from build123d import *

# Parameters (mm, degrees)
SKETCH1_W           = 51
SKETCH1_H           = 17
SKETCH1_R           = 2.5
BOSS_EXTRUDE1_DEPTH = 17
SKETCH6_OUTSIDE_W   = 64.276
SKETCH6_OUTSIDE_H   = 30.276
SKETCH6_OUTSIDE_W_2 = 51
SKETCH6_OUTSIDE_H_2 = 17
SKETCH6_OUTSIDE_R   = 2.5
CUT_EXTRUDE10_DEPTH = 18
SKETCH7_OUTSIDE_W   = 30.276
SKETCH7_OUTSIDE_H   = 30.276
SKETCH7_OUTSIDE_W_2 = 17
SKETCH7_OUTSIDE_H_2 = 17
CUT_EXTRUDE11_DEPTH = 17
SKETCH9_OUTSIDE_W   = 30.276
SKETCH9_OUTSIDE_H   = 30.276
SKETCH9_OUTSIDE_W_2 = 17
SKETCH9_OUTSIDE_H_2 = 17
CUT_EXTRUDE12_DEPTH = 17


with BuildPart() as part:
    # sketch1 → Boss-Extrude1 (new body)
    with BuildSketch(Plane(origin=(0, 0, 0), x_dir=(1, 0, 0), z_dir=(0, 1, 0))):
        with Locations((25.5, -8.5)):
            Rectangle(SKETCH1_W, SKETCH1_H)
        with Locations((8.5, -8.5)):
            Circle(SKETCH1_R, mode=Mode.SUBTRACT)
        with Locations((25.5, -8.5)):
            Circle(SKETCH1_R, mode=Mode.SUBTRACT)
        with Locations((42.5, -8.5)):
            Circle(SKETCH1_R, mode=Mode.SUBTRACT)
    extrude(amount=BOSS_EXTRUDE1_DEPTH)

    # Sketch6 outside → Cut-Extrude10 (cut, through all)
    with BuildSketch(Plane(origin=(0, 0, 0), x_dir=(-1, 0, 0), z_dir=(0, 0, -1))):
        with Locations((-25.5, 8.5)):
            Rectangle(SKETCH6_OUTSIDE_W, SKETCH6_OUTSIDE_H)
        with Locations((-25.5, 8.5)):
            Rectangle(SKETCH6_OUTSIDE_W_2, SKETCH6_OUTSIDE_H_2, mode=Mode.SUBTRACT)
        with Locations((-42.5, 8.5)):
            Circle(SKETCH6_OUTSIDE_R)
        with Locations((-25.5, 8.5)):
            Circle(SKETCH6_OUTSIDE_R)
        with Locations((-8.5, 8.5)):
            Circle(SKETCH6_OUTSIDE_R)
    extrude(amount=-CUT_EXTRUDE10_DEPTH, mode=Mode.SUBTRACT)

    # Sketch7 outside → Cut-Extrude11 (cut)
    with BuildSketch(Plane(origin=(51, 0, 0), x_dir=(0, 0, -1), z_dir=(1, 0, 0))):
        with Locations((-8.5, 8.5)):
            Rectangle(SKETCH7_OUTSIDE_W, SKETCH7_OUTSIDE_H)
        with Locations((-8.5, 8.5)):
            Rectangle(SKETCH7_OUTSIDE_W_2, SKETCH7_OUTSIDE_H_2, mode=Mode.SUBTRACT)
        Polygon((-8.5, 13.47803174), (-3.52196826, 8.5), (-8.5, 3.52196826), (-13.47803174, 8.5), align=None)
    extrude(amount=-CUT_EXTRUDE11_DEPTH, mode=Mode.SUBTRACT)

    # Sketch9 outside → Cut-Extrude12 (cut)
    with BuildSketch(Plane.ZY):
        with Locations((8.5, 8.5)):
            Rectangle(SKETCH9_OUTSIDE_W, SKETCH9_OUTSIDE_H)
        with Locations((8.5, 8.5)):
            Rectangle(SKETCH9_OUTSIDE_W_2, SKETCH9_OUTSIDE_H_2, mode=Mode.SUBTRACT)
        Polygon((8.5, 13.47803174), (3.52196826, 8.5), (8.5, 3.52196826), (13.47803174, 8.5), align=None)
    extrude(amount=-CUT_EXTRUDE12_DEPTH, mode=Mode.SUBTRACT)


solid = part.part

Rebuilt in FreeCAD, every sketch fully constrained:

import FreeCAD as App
import Part
import Sketcher

V = App.Vector
Q = App.Units.Quantity

doc = App.newDocument("Part")
body = doc.addObject("PartDesign::Body", "Body")

sketch1 = body.newObject("Sketcher::SketchObject", "Sketch")
sketch1.AttachmentSupport = (doc.getObject("XZ_Plane"), [""])
sketch1.MapMode = "FlatFace"
sketch1.addGeometry(Part.LineSegment(V(0, 0, 0), V(0, 17, 0)), False)
sketch1.addGeometry(Part.LineSegment(V(0, 17, 0), V(51, 17, 0)), False)
sketch1.addGeometry(Part.LineSegment(V(51, 17, 0), V(51, 0, 0)), False)
sketch1.addGeometry(Part.LineSegment(V(51, 0, 0), V(0, 0, 0)), False)
sketch1.addGeometry(Part.Circle(V(8.5, 8.5, 0), V(0, 0, 1), 2.5), False)
sketch1.addGeometry(Part.Circle(V(25.5, 8.5, 0), V(0, 0, 1), 2.5), False)
sketch1.addGeometry(Part.Circle(V(42.5, 8.5, 0), V(0, 0, 1), 2.5), False)
sketch1.addConstraint(Sketcher.Constraint("Coincident", 0, 2, 1, 1))
sketch1.addConstraint(Sketcher.Constraint("Coincident", 1, 2, 2, 1))
sketch1.addConstraint(Sketcher.Constraint("Coincident", 2, 2, 3, 1))
sketch1.addConstraint(Sketcher.Constraint("Coincident", 3, 2, 0, 1))
sketch1.addConstraint(Sketcher.Constraint("Vertical", 0))
sketch1.addConstraint(Sketcher.Constraint("Horizontal", 1))
sketch1.addConstraint(Sketcher.Constraint("Vertical", 2))
sketch1.addConstraint(Sketcher.Constraint("Horizontal", 3))
sketch1.addConstraint(Sketcher.Constraint("Coincident", 3, 2, -1, 1))
sketch1.addConstraint(Sketcher.Constraint("Equal", 4, 5))
sketch1.addConstraint(Sketcher.Constraint("Equal", 5, 6))
sketch1.addConstraint(Sketcher.Constraint("Horizontal", 4, 3, 5, 3))
sketch1.addConstraint(Sketcher.Constraint("Horizontal", 5, 3, 6, 3))
sketch1.addConstraint(Sketcher.Constraint("Diameter", 4, Q("5 mm")))
sketch1.addConstraint(Sketcher.Constraint("DistanceX", 1, 1, 1, 2, Q("51 mm")))
sketch1.addConstraint(Sketcher.Constraint("DistanceY", 0, 1, 0, 2, Q("17 mm")))
sketch1.addConstraint(Sketcher.Constraint("DistanceX", 4, 3, 5, 3, Q("17 mm")))
sketch1.addConstraint(Sketcher.Constraint("DistanceX", 5, 3, 6, 3, Q("17 mm")))
sketch1.addConstraint(Sketcher.Constraint("DistanceX", -1, 1, 4, 3, Q("8.5 mm")))
sketch1.addConstraint(Sketcher.Constraint("DistanceY", -1, 1, 4, 3, Q("8.5 mm")))
pad1 = body.newObject("PartDesign::Pad", "Pad")
pad1.Profile = sketch1
pad1.Length = 17
pad1.Reversed = True

sketch2 = body.newObject("Sketcher::SketchObject", "Sketch001")
sketch2.AttachmentSupport = (doc.getObject("XY_Plane"), [""])
sketch2.MapMode = "FlatFace"
sketch2.addGeometry(Part.LineSegment(V(57.638, 23.638, 0), V(57.638, -6.638, 0)), False)
sketch2.addGeometry(Part.LineSegment(V(57.638, -6.638, 0), V(-6.638, -6.638, 0)), False)
sketch2.addGeometry(Part.LineSegment(V(-6.638, -6.638, 0), V(-6.638, 23.638, 0)), False)
sketch2.addGeometry(Part.LineSegment(V(-6.638, 23.638, 0), V(57.638, 23.638, 0)), False)
sketch2.addGeometry(Part.LineSegment(V(0, 0, 0), V(51, 0, 0)), False)
sketch2.addGeometry(Part.LineSegment(V(51, 0, 0), V(51, 17, 0)), False)
sketch2.addGeometry(Part.LineSegment(V(51, 17, 0), V(0, 17, 0)), False)
sketch2.addGeometry(Part.LineSegment(V(0, 17, 0), V(0, 0, 0)), False)
sketch2.addGeometry(Part.Circle(V(42.5, 8.5, 0), V(0, 0, 1), 2.5), False)
sketch2.addGeometry(Part.Circle(V(25.5, 8.5, 0), V(0, 0, 1), 2.5), False)
sketch2.addGeometry(Part.Circle(V(8.5, 8.5, 0), V(0, 0, 1), 2.5), False)
sketch2.addConstraint(Sketcher.Constraint("Coincident", 0, 2, 1, 1))
sketch2.addConstraint(Sketcher.Constraint("Coincident", 1, 2, 2, 1))
sketch2.addConstraint(Sketcher.Constraint("Coincident", 2, 2, 3, 1))
sketch2.addConstraint(Sketcher.Constraint("Coincident", 3, 2, 0, 1))
sketch2.addConstraint(Sketcher.Constraint("Coincident", 4, 2, 5, 1))
sketch2.addConstraint(Sketcher.Constraint("Coincident", 5, 2, 6, 1))
sketch2.addConstraint(Sketcher.Constraint("Coincident", 6, 2, 7, 1))
sketch2.addConstraint(Sketcher.Constraint("Coincident", 7, 2, 4, 1))
sketch2.addConstraint(Sketcher.Constraint("Vertical", 0))
sketch2.addConstraint(Sketcher.Constraint("Horizontal", 1))
sketch2.addConstraint(Sketcher.Constraint("Vertical", 2))
sketch2.addConstraint(Sketcher.Constraint("Horizontal", 3))
sketch2.addConstraint(Sketcher.Constraint("Horizontal", 4))
sketch2.addConstraint(Sketcher.Constraint("Vertical", 5))
sketch2.addConstraint(Sketcher.Constraint("Horizontal", 6))
sketch2.addConstraint(Sketcher.Constraint("Vertical", 7))
sketch2.addConstraint(Sketcher.Constraint("Coincident", 7, 2, -1, 1))
sketch2.addConstraint(Sketcher.Constraint("Equal", 8, 9))
sketch2.addConstraint(Sketcher.Constraint("Equal", 9, 10))
sketch2.addConstraint(Sketcher.Constraint("Horizontal", 8, 3, 9, 3))
sketch2.addConstraint(Sketcher.Constraint("Horizontal", 9, 3, 10, 3))
sketch2.addConstraint(Sketcher.Constraint("Diameter", 8, Q("5 mm")))
sketch2.addConstraint(Sketcher.Constraint("DistanceX", 4, 1, 4, 2, Q("51 mm")))
sketch2.addConstraint(Sketcher.Constraint("DistanceY", 5, 1, 5, 2, Q("17 mm")))
sketch2.addConstraint(Sketcher.Constraint("DistanceX", 9, 3, 8, 3, Q("17 mm")))
sketch2.addConstraint(Sketcher.Constraint("DistanceX", 10, 3, 9, 3, Q("17 mm")))
sketch2.addConstraint(Sketcher.Constraint("DistanceX", -1, 1, 8, 3, Q("42.5 mm")))
sketch2.addConstraint(Sketcher.Constraint("DistanceY", -1, 1, 8, 3, Q("8.5 mm")))
sketch2.addConstraint(Sketcher.Constraint("DistanceX", 1, 2, 1, 1, Q("64.276 mm")))
sketch2.addConstraint(Sketcher.Constraint("DistanceY", 0, 2, 0, 1, Q("30.276 mm")))
sketch2.addConstraint(Sketcher.Constraint("DistanceX", -1, 1, 0, 2, Q("57.638 mm")))
sketch2.addConstraint(Sketcher.Constraint("DistanceY", 0, 2, -1, 1, Q("6.638 mm")))
pocket1 = body.newObject("PartDesign::Pocket", "Pocket")
pocket1.Profile = sketch2
pocket1.Type = "ThroughAll"
pocket1.Reversed = True

sketch3 = body.newObject("Sketcher::SketchObject", "Sketch002")
sketch3.AttachmentSupport = (doc.getObject("YZ_Plane"), [""])
sketch3.MapMode = "FlatFace"
sketch3.AttachmentOffset = App.Placement(V(0, 0, 51), App.Rotation())
sketch3.addGeometry(Part.LineSegment(V(23.638, 23.638, 0), V(-6.638, 23.638, 0)), False)
sketch3.addGeometry(Part.LineSegment(V(-6.638, 23.638, 0), V(-6.638, -6.638, 0)), False)
sketch3.addGeometry(Part.LineSegment(V(-6.638, -6.638, 0), V(23.638, -6.638, 0)), False)
sketch3.addGeometry(Part.LineSegment(V(23.638, -6.638, 0), V(23.638, 23.638, 0)), False)
sketch3.addGeometry(Part.LineSegment(V(0, 0, 0), V(0, 17, 0)), False)
sketch3.addGeometry(Part.LineSegment(V(0, 17, 0), V(17, 17, 0)), False)
sketch3.addGeometry(Part.LineSegment(V(17, 17, 0), V(17, 0, 0)), False)
sketch3.addGeometry(Part.LineSegment(V(17, 0, 0), V(0, 0, 0)), False)
sketch3.addGeometry(Part.LineSegment(V(8.5, 3.521968, 0), V(13.478032, 8.5, 0)), False)
sketch3.addGeometry(Part.LineSegment(V(13.478032, 8.5, 0), V(8.5, 13.478032, 0)), False)
sketch3.addGeometry(Part.LineSegment(V(8.5, 13.478032, 0), V(3.521968, 8.5, 0)), False)
sketch3.addGeometry(Part.LineSegment(V(3.521968, 8.5, 0), V(8.5, 3.521968, 0)), False)
sketch3.addConstraint(Sketcher.Constraint("Coincident", 0, 2, 1, 1))
sketch3.addConstraint(Sketcher.Constraint("Coincident", 1, 2, 2, 1))
sketch3.addConstraint(Sketcher.Constraint("Coincident", 2, 2, 3, 1))
sketch3.addConstraint(Sketcher.Constraint("Coincident", 3, 2, 0, 1))
sketch3.addConstraint(Sketcher.Constraint("Coincident", 4, 2, 5, 1))
sketch3.addConstraint(Sketcher.Constraint("Coincident", 5, 2, 6, 1))
sketch3.addConstraint(Sketcher.Constraint("Coincident", 6, 2, 7, 1))
sketch3.addConstraint(Sketcher.Constraint("Coincident", 7, 2, 4, 1))
sketch3.addConstraint(Sketcher.Constraint("Coincident", 8, 2, 9, 1))
sketch3.addConstraint(Sketcher.Constraint("Coincident", 9, 2, 10, 1))
sketch3.addConstraint(Sketcher.Constraint("Coincident", 10, 2, 11, 1))
sketch3.addConstraint(Sketcher.Constraint("Coincident", 11, 2, 8, 1))
sketch3.addConstraint(Sketcher.Constraint("Horizontal", 0))
sketch3.addConstraint(Sketcher.Constraint("Vertical", 1))
sketch3.addConstraint(Sketcher.Constraint("Horizontal", 2))
sketch3.addConstraint(Sketcher.Constraint("Vertical", 3))
sketch3.addConstraint(Sketcher.Constraint("Vertical", 4))
sketch3.addConstraint(Sketcher.Constraint("Horizontal", 5))
sketch3.addConstraint(Sketcher.Constraint("Vertical", 6))
sketch3.addConstraint(Sketcher.Constraint("Horizontal", 7))
sketch3.addConstraint(Sketcher.Constraint("Coincident", 7, 2, -1, 1))
sketch3.addConstraint(Sketcher.Constraint("Perpendicular", 8, 9))
sketch3.addConstraint(Sketcher.Constraint("Perpendicular", 9, 10))
sketch3.addConstraint(Sketcher.Constraint("Perpendicular", 10, 11))
sketch3.addConstraint(Sketcher.Constraint("Horizontal", 8, 2, 10, 2))
sketch3.addConstraint(Sketcher.Constraint("Vertical", 9, 2, 11, 2))
sketch3.addConstraint(Sketcher.Constraint("Equal", 2, 1))
sketch3.addConstraint(Sketcher.Constraint("Equal", 7, 4))
sketch3.addConstraint(Sketcher.Constraint("DistanceX", 5, 1, 5, 2, Q("17 mm")))
sketch3.addConstraint(Sketcher.Constraint("DistanceY", -1, 1, 8, 2, Q("8.5 mm")))
sketch3.addConstraint(Sketcher.Constraint("DistanceX", -1, 1, 9, 2, Q("8.5 mm")))
sketch3.addConstraint(Sketcher.Constraint("Distance", 8, Q("7.04 mm")))
sketch3.addConstraint(Sketcher.Constraint("DistanceX", 0, 2, 0, 1, Q("30.276 mm")))
sketch3.addConstraint(Sketcher.Constraint("DistanceX", 0, 2, -1, 1, Q("6.638 mm")))
sketch3.addConstraint(Sketcher.Constraint("DistanceY", -1, 1, 0, 2, Q("23.638 mm")))
pocket2 = body.newObject("PartDesign::Pocket", "Pocket001")
pocket2.Profile = sketch3
pocket2.Length = 17

sketch4 = body.newObject("Sketcher::SketchObject", "Sketch003")
sketch4.AttachmentSupport = (doc.getObject("YZ_Plane"), [""])
sketch4.MapMode = "FlatFace"
sketch4.addGeometry(Part.LineSegment(V(23.638, -6.638, 0), V(-6.638, -6.638, 0)), False)
sketch4.addGeometry(Part.LineSegment(V(-6.638, -6.638, 0), V(-6.638, 23.638, 0)), False)
sketch4.addGeometry(Part.LineSegment(V(-6.638, 23.638, 0), V(23.638, 23.638, 0)), False)
sketch4.addGeometry(Part.LineSegment(V(23.638, 23.638, 0), V(23.638, -6.638, 0)), False)
sketch4.addGeometry(Part.LineSegment(V(0, 17, 0), V(0, 0, 0)), False)
sketch4.addGeometry(Part.LineSegment(V(0, 0, 0), V(17, 0, 0)), False)
sketch4.addGeometry(Part.LineSegment(V(17, 0, 0), V(17, 17, 0)), False)
sketch4.addGeometry(Part.LineSegment(V(17, 17, 0), V(0, 17, 0)), False)
sketch4.addGeometry(Part.LineSegment(V(13.478032, 8.5, 0), V(8.5, 3.521968, 0)), False)
sketch4.addGeometry(Part.LineSegment(V(8.5, 3.521968, 0), V(3.521968, 8.5, 0)), False)
sketch4.addGeometry(Part.LineSegment(V(3.521968, 8.5, 0), V(8.5, 13.478032, 0)), False)
sketch4.addGeometry(Part.LineSegment(V(8.5, 13.478032, 0), V(13.478032, 8.5, 0)), False)
sketch4.addConstraint(Sketcher.Constraint("Coincident", 0, 2, 1, 1))
sketch4.addConstraint(Sketcher.Constraint("Coincident", 1, 2, 2, 1))
sketch4.addConstraint(Sketcher.Constraint("Coincident", 2, 2, 3, 1))
sketch4.addConstraint(Sketcher.Constraint("Coincident", 3, 2, 0, 1))
sketch4.addConstraint(Sketcher.Constraint("Coincident", 4, 2, 5, 1))
sketch4.addConstraint(Sketcher.Constraint("Coincident", 5, 2, 6, 1))
sketch4.addConstraint(Sketcher.Constraint("Coincident", 6, 2, 7, 1))
sketch4.addConstraint(Sketcher.Constraint("Coincident", 7, 2, 4, 1))
sketch4.addConstraint(Sketcher.Constraint("Coincident", 8, 2, 9, 1))
sketch4.addConstraint(Sketcher.Constraint("Coincident", 9, 2, 10, 1))
sketch4.addConstraint(Sketcher.Constraint("Coincident", 10, 2, 11, 1))
sketch4.addConstraint(Sketcher.Constraint("Coincident", 11, 2, 8, 1))
sketch4.addConstraint(Sketcher.Constraint("Horizontal", 0))
sketch4.addConstraint(Sketcher.Constraint("Vertical", 1))
sketch4.addConstraint(Sketcher.Constraint("Horizontal", 2))
sketch4.addConstraint(Sketcher.Constraint("Vertical", 3))
sketch4.addConstraint(Sketcher.Constraint("Vertical", 4))
sketch4.addConstraint(Sketcher.Constraint("Horizontal", 5))
sketch4.addConstraint(Sketcher.Constraint("Vertical", 6))
sketch4.addConstraint(Sketcher.Constraint("Horizontal", 7))
sketch4.addConstraint(Sketcher.Constraint("Coincident", 4, 2, -1, 1))
sketch4.addConstraint(Sketcher.Constraint("Perpendicular", 8, 9))
sketch4.addConstraint(Sketcher.Constraint("Perpendicular", 9, 10))
sketch4.addConstraint(Sketcher.Constraint("Perpendicular", 10, 11))
sketch4.addConstraint(Sketcher.Constraint("Horizontal", 9, 2, 11, 2))
sketch4.addConstraint(Sketcher.Constraint("Vertical", 8, 2, 10, 2))
sketch4.addConstraint(Sketcher.Constraint("Equal", 2, 1))
sketch4.addConstraint(Sketcher.Constraint("Equal", 7, 4))
sketch4.addConstraint(Sketcher.Constraint("DistanceX", 5, 1, 5, 2, Q("17 mm")))
sketch4.addConstraint(Sketcher.Constraint("DistanceX", -1, 1, 8, 2, Q("8.5 mm")))
sketch4.addConstraint(Sketcher.Constraint("DistanceY", -1, 1, 9, 2, Q("8.5 mm")))
sketch4.addConstraint(Sketcher.Constraint("Distance", 8, Q("7.04 mm")))
sketch4.addConstraint(Sketcher.Constraint("DistanceX", 0, 2, 0, 1, Q("30.276 mm")))
sketch4.addConstraint(Sketcher.Constraint("DistanceX", 0, 2, -1, 1, Q("6.638 mm")))
sketch4.addConstraint(Sketcher.Constraint("DistanceY", 0, 2, -1, 1, Q("6.638 mm")))
pocket3 = body.newObject("PartDesign::Pocket", "Pocket002")
pocket3.Profile = sketch4
pocket3.Length = 17
pocket3.Reversed = True

doc.recompute()
